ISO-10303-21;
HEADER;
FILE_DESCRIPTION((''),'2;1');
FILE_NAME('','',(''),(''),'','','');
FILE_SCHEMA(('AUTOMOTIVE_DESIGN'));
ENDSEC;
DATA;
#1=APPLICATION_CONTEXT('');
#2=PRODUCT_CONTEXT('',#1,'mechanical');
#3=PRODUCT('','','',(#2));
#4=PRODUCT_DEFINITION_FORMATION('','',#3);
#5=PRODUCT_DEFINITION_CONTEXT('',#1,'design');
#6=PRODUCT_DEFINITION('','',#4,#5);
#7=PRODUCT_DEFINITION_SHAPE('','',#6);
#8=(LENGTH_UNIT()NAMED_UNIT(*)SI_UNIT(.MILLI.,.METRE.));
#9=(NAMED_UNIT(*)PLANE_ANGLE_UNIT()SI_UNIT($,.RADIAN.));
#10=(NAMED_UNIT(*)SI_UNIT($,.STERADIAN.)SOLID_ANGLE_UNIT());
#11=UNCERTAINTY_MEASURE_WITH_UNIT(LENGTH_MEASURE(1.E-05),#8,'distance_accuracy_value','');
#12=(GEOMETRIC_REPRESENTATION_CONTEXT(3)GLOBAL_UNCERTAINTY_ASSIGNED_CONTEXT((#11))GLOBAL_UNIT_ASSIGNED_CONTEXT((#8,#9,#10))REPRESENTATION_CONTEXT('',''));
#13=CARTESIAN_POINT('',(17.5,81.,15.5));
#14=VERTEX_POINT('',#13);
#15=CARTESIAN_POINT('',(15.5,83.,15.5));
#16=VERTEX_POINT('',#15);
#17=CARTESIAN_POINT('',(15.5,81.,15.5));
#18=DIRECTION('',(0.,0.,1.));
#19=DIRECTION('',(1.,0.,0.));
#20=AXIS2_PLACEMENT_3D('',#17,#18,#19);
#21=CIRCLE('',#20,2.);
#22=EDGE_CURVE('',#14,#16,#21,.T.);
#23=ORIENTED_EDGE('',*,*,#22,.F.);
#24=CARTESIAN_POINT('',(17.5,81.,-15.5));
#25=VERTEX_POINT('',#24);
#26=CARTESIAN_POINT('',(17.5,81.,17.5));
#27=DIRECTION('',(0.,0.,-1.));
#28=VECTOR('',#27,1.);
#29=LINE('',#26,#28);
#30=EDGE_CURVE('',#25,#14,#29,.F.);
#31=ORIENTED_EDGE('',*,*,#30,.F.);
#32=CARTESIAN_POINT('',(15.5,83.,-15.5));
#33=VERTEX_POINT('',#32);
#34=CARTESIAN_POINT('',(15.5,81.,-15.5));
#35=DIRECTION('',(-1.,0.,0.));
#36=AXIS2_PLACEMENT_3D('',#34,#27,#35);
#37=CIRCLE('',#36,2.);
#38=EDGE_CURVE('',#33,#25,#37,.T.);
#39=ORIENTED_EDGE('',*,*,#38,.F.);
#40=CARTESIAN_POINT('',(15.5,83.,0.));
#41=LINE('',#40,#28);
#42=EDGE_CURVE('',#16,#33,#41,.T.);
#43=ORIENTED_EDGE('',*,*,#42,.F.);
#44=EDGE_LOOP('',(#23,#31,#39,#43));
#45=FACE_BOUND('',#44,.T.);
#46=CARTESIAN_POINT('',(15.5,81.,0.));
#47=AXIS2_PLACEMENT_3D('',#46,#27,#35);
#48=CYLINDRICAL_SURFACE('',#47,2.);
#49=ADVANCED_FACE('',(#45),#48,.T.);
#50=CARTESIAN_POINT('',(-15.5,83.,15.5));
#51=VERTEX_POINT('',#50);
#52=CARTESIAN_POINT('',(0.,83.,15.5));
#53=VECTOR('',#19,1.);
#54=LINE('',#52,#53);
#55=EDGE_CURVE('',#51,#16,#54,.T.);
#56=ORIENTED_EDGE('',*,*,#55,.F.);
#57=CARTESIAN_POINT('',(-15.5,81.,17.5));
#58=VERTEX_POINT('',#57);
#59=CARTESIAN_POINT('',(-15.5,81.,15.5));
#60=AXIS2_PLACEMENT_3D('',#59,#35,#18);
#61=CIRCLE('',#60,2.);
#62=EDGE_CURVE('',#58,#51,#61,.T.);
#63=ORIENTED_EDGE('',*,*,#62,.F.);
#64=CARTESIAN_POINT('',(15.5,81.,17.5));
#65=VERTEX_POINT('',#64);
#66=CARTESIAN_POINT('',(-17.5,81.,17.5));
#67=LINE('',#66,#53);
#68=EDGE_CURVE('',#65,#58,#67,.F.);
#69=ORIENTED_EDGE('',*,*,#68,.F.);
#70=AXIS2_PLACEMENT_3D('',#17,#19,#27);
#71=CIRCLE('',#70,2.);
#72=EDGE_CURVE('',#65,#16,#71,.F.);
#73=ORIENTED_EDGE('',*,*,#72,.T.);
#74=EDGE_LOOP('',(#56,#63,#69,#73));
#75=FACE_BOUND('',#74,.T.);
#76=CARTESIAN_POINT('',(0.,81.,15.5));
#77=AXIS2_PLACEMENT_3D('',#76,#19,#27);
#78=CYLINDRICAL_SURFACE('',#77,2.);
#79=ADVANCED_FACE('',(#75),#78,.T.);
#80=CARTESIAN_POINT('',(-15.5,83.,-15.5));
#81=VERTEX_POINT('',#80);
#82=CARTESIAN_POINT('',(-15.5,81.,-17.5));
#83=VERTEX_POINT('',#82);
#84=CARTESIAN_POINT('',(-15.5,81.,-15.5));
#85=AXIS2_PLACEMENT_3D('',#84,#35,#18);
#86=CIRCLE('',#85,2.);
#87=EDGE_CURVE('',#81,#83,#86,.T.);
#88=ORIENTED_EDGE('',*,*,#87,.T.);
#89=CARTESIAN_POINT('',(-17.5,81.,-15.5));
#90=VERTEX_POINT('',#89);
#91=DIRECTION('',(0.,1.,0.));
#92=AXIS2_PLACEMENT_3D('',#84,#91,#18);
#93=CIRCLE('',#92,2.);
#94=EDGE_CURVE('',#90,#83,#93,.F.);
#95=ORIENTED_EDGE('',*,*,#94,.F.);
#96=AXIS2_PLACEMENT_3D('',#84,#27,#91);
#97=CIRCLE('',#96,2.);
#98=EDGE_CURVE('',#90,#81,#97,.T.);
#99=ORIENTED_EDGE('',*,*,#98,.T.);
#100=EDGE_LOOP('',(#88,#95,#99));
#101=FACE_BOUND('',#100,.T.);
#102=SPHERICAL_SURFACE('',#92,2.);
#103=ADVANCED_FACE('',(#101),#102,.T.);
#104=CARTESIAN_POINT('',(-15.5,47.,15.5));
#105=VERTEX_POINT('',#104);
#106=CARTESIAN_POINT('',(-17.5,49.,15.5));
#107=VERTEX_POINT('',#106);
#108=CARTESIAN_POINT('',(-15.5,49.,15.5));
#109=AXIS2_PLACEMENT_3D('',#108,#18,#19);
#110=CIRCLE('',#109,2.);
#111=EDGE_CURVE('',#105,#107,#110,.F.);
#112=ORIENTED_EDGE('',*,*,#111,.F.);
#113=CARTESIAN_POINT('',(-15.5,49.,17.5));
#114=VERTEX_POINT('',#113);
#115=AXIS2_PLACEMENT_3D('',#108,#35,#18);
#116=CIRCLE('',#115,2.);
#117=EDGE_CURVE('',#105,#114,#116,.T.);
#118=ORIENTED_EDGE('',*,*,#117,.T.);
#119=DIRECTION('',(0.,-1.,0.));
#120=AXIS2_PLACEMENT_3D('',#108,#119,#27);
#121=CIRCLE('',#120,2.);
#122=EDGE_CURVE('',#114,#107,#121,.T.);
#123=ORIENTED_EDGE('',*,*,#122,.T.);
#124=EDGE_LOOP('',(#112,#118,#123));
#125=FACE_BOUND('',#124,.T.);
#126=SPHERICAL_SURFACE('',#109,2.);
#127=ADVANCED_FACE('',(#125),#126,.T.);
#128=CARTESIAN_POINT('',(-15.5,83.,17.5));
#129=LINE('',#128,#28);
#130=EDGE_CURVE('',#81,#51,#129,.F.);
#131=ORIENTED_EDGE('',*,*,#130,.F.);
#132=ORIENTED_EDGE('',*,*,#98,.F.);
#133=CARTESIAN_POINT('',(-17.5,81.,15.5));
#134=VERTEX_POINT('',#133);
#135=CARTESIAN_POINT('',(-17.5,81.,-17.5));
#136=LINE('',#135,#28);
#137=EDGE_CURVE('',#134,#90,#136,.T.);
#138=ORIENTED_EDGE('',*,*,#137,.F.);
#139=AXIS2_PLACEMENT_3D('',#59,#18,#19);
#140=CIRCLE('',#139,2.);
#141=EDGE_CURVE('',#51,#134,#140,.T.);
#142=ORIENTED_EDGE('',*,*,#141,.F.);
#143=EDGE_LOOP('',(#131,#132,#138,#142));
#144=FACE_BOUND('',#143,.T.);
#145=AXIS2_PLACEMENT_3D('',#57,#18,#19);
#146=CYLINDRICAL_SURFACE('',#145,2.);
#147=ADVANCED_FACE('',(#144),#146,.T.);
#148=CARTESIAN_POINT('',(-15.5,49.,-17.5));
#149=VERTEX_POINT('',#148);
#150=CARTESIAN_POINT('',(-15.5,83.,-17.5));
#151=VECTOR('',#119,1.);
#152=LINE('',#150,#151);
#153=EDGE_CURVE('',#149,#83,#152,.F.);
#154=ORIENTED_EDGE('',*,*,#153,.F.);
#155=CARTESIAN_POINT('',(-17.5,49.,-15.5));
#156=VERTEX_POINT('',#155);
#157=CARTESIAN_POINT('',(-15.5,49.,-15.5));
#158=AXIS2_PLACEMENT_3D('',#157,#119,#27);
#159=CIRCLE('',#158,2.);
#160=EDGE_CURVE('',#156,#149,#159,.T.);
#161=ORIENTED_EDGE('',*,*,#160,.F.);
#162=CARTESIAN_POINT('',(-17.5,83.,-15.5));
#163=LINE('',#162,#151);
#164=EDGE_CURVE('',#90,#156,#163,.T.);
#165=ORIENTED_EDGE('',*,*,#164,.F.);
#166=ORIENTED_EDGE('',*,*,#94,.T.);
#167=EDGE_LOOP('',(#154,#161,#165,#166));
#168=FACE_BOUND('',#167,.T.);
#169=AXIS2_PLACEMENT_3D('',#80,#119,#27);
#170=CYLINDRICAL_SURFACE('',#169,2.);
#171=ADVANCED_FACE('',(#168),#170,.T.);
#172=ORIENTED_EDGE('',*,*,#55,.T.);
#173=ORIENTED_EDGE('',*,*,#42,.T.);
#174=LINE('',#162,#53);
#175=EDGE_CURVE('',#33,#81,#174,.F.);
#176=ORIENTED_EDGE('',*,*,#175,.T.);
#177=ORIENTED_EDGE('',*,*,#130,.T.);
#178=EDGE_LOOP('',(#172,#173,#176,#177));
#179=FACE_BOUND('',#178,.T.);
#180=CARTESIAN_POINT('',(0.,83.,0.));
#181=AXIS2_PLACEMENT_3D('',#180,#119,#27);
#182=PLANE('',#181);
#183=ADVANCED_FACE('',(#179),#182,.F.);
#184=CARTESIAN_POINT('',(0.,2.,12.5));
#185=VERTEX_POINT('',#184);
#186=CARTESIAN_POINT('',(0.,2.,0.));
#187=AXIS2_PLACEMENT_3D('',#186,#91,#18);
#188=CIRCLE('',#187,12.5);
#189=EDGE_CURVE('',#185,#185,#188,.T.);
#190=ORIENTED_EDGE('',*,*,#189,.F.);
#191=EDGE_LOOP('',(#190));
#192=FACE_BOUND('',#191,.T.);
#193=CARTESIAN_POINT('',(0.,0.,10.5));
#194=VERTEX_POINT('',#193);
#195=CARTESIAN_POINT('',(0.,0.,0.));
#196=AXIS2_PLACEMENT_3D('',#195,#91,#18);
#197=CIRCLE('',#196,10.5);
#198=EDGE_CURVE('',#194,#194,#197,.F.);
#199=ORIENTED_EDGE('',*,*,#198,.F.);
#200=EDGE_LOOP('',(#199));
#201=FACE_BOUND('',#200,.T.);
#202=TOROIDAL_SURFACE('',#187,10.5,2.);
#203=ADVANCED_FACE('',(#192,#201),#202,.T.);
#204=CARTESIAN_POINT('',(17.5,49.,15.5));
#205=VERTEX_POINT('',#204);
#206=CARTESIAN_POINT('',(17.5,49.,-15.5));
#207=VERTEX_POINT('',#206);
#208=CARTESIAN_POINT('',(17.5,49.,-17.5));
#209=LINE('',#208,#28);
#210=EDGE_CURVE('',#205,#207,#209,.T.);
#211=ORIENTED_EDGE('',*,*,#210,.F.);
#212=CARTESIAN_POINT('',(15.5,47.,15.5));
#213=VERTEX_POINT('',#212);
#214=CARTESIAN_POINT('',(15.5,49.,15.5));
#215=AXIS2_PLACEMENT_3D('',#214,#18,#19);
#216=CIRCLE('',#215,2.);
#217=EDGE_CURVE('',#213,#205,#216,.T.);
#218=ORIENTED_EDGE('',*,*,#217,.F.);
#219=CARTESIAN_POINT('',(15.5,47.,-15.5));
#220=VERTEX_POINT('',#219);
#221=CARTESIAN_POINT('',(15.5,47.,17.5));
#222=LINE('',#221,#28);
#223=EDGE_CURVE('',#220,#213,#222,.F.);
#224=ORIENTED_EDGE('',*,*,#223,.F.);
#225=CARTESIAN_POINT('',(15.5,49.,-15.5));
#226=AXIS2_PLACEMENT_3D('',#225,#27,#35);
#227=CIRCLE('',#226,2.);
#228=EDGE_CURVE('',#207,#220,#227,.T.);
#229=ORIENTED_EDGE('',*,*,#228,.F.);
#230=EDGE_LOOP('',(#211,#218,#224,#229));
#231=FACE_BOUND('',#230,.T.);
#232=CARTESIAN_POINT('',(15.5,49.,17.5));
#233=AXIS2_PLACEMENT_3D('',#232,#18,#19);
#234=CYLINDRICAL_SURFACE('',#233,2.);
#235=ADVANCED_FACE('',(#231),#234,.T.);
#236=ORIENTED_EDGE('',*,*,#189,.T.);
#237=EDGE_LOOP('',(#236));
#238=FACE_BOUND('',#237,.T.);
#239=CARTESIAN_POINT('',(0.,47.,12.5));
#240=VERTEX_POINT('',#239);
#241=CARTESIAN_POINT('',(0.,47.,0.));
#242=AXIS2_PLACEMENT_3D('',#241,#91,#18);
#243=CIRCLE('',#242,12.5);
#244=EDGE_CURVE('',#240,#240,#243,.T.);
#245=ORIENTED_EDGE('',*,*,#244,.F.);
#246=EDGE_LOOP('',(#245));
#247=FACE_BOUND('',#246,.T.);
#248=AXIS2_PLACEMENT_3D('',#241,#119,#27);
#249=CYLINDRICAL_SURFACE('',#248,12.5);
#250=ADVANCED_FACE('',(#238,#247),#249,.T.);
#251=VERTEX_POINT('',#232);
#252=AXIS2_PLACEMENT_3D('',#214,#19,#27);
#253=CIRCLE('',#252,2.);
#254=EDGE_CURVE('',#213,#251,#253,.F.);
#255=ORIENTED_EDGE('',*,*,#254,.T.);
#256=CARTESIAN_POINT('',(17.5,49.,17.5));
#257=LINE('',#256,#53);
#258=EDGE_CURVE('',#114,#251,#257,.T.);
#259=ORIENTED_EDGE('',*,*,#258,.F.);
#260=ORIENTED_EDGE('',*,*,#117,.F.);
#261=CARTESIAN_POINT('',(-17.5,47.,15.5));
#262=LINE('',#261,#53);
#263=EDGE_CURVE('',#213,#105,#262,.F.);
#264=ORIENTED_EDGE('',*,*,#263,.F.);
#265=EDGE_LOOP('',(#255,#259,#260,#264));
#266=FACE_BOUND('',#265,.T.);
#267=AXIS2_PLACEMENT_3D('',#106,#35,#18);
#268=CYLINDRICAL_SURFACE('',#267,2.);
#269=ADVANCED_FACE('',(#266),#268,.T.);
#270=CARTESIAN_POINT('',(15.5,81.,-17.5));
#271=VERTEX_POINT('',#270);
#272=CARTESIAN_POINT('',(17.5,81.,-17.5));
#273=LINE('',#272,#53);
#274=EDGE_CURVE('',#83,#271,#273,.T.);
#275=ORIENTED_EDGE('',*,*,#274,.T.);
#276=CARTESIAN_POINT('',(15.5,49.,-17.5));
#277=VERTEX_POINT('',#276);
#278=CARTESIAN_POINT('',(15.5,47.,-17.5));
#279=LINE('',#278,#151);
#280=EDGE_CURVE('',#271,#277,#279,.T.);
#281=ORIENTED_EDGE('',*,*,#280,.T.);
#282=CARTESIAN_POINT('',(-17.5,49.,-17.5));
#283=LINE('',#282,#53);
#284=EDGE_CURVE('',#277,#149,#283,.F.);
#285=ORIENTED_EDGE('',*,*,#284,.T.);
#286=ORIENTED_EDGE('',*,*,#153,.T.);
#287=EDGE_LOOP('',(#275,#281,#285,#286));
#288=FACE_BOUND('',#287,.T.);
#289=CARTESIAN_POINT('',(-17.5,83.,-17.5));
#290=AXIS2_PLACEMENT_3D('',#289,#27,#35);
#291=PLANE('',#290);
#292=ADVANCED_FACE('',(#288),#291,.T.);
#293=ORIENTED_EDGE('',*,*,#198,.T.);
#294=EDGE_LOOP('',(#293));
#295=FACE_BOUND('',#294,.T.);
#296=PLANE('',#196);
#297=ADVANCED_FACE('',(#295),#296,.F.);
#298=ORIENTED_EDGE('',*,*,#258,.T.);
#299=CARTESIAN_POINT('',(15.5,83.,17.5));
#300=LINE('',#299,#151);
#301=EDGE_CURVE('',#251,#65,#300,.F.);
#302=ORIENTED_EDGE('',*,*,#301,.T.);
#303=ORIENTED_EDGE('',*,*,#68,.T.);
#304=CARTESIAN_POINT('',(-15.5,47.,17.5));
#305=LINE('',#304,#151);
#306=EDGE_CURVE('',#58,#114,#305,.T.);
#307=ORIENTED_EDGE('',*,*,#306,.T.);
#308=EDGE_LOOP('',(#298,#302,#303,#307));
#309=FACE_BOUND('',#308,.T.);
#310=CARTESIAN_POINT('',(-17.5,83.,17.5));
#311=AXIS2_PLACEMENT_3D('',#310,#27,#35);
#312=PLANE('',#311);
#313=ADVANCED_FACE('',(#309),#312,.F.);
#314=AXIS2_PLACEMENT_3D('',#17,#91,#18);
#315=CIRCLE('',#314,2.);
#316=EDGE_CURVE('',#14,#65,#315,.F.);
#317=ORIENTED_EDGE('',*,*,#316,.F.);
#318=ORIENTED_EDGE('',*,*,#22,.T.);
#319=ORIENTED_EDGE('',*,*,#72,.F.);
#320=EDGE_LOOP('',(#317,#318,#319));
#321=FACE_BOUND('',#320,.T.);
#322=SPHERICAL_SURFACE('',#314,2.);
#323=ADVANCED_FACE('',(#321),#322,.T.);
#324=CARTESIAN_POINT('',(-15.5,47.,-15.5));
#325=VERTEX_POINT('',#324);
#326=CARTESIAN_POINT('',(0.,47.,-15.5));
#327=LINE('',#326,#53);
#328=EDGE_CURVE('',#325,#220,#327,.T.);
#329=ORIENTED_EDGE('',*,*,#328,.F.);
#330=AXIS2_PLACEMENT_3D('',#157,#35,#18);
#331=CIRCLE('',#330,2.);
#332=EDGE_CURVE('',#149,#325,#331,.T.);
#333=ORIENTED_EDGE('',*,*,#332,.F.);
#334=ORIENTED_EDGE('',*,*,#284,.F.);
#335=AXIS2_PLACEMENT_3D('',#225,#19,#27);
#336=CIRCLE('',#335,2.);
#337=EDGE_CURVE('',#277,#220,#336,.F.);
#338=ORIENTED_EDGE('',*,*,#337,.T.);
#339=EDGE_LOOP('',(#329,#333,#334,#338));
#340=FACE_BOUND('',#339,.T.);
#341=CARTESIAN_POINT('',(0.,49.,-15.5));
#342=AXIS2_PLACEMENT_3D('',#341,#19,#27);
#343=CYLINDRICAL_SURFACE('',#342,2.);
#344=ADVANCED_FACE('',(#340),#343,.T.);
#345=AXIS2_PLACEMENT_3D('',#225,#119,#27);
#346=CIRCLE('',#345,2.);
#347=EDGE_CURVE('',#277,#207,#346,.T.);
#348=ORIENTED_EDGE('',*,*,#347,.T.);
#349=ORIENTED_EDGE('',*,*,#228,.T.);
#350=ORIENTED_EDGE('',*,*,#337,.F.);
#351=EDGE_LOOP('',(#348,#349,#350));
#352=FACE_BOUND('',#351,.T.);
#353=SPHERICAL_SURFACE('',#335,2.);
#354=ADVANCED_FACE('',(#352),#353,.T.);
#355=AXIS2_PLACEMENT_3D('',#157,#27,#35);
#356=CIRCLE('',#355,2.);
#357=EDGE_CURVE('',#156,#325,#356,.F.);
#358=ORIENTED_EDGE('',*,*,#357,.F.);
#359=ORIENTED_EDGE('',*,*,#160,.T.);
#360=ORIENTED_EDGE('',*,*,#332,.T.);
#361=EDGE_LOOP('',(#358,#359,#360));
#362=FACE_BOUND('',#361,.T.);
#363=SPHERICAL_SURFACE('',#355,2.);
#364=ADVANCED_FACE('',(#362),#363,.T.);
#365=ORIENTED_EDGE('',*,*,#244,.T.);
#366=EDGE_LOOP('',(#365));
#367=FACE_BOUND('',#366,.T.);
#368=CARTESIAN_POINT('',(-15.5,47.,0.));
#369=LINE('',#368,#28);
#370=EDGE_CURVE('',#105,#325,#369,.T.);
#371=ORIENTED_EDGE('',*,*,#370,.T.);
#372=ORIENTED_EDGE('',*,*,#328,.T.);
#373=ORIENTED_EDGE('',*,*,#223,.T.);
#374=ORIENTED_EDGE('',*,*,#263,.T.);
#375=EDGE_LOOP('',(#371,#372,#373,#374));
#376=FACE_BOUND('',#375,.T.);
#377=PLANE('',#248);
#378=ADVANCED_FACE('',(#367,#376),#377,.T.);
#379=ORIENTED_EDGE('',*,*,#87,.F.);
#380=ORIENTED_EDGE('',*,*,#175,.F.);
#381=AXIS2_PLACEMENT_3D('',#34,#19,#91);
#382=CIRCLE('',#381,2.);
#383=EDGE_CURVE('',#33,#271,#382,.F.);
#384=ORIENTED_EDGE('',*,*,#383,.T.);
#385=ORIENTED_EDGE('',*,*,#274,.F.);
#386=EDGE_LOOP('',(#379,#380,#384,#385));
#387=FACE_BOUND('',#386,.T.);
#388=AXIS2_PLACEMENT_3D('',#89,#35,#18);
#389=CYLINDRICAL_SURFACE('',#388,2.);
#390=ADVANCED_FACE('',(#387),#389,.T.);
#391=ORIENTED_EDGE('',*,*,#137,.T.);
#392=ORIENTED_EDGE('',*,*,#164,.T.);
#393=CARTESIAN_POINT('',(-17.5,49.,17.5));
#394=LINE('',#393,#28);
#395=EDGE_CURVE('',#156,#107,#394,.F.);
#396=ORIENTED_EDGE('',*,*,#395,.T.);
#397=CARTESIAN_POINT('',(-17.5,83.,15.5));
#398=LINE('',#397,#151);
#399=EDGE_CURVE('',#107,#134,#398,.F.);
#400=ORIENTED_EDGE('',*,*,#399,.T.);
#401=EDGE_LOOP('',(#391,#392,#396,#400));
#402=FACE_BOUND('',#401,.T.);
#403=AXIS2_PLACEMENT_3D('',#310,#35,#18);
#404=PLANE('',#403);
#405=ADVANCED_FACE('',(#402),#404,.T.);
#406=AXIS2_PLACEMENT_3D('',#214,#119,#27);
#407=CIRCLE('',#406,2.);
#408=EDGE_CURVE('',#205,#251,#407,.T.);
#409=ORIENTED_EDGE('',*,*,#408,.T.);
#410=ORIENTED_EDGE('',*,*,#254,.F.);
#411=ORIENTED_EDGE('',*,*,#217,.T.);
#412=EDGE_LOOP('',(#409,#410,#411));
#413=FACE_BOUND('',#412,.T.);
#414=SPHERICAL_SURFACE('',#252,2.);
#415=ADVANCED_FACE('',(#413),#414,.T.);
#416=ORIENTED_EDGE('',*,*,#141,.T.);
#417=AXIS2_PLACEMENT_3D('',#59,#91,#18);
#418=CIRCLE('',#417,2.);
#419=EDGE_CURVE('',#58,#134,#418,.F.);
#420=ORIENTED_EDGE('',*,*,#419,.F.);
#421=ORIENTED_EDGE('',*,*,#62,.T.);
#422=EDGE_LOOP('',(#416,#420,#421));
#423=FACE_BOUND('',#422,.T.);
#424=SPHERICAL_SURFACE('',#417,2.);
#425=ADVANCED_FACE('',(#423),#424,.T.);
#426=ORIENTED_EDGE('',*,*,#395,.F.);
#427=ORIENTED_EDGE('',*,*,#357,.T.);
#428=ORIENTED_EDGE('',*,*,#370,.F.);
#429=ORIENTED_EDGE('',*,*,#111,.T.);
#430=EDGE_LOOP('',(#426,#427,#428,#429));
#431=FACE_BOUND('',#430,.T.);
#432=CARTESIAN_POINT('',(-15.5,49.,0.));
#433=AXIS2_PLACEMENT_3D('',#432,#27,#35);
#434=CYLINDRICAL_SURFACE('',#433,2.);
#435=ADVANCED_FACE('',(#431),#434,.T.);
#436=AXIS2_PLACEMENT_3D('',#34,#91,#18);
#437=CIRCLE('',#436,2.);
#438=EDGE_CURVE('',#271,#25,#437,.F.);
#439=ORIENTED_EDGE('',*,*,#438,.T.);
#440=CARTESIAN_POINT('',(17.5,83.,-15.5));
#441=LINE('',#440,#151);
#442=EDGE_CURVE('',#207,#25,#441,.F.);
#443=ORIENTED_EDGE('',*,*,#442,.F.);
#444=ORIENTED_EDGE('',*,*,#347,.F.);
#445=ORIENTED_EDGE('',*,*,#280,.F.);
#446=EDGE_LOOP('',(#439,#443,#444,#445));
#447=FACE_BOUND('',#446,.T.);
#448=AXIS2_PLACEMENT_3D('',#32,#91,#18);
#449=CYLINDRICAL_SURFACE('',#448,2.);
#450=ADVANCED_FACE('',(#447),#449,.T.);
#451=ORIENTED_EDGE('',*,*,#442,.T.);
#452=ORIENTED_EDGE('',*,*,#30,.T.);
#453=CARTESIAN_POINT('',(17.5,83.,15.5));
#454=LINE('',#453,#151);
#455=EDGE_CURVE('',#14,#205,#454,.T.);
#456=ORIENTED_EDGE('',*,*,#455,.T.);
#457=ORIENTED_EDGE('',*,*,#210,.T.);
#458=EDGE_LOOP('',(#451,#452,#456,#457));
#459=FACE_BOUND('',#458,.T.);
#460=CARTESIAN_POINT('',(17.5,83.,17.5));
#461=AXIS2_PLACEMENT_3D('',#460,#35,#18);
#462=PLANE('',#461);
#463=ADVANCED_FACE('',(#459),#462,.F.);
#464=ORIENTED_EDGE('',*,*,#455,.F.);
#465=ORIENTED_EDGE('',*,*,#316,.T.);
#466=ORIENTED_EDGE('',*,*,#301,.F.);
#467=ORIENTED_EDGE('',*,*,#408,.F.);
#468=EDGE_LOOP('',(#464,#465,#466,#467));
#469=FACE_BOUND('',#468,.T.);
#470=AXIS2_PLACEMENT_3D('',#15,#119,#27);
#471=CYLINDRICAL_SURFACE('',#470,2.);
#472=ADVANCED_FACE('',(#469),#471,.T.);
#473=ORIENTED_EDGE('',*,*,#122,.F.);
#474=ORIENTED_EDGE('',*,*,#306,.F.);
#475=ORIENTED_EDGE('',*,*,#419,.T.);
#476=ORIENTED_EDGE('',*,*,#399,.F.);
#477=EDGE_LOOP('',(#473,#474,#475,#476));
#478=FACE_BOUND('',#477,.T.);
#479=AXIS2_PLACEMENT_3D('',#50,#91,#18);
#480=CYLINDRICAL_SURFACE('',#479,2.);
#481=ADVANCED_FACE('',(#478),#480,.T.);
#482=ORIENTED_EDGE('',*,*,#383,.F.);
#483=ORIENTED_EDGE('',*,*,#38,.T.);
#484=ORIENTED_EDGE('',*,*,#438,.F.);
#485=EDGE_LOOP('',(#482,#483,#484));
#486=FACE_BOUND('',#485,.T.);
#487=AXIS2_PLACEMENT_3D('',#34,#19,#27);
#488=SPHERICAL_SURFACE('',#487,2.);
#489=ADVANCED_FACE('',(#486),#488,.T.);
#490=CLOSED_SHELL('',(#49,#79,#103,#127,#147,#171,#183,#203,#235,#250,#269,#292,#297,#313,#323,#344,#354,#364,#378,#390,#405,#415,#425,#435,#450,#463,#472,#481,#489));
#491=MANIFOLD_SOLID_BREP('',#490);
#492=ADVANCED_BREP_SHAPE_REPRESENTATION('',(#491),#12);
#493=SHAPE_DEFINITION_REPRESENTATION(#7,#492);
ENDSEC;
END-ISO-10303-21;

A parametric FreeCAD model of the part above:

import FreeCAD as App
import Part
import Sketcher
from FreeCAD import Vector


def edges_at(feature, points):
    """Names of the edges that pass closest to the given points."""
    edges = feature.Shape.Edges
    near = lambda p: min(range(len(edges)), key=lambda i: edges[i].distToShape(Part.Vertex(*p))[0])
    return sorted({f"Edge{near(p) + 1}" for p in points})


def add_polygon(sketch, points):
    """Adds a closed chain of lines whose ends are joined by coincident constraints."""
    first, n = sketch.GeometryCount, len(points)
    for a, b in zip(points, points[1:] + points[:1]):
        sketch.addGeometry(Part.LineSegment(App.Vector(*a, 0), App.Vector(*b, 0)), False)
    for i in range(n):
        sketch.addConstraint(Sketcher.Constraint("Coincident", first + i, 2, first + (i + 1) % n, 1))

doc = App.newDocument("Part")
body = doc.addObject("PartDesign::Body", "Body")

sketch1 = doc.addObject("Sketcher::SketchObject", "Sketch")
body.addObject(sketch1)
sketch1.AttachmentSupport = (doc.XZ_Plane, [""])
sketch1.MapMode = "FlatFace"
sketch1.addGeometry(Part.Circle(Vector(0, 0, 0), Vector(0, 0, 1), 12), False)
sketch1.addConstraint(Sketcher.Constraint("Coincident", 0, 3, -1, 1))
sketch1.addConstraint(Sketcher.Constraint("Diameter", 0, 25.0))
pad1 = doc.addObject("PartDesign::Pad", "Pad")
body.addObject(pad1)
pad1.Profile = sketch1
pad1.Length = 47
pad1.Reversed = True

sketch2 = doc.addObject("Sketcher::SketchObject", "Sketch001")
body.addObject(sketch2)
sketch2.AttachmentSupport = (doc.XZ_Plane, [""])
sketch2.MapMode = "FlatFace"
sketch2.AttachmentOffset = App.Placement(Vector(0, 0, -47), App.Rotation())
add_polygon(sketch2, [(-18, -18), (-18, 18), (18, 18), (18, -18)])
sketch2.addConstraint(Sketcher.Constraint("Vertical", 0))
sketch2.addConstraint(Sketcher.Constraint("Horizontal", 1))
sketch2.addConstraint(Sketcher.Constraint("Vertical", 2))
sketch2.addConstraint(Sketcher.Constraint("Horizontal", 3))
sketch2.addConstraint(Sketcher.Constraint("Symmetric", 0, 2, 2, 2, -1, 1))
sketch2.addConstraint(Sketcher.Constraint("Equal", 3, 0))
sketch2.addConstraint(Sketcher.Constraint("DistanceX", 1, 1, 1, 2, 35.0))
pad2 = doc.addObject("PartDesign::Pad", "Pad001")
body.addObject(pad2)
pad2.Profile = sketch2
pad2.Length = 36
pad2.Reversed = True
doc.recompute()

fillet = doc.addObject("PartDesign::Fillet", "Fillet")
body.addObject(fillet)
fillet.Base = (pad2, edges_at(pad2, [
    (0, 0, -12.5),
    (-17.5, 83, 0),
    (-17.5, 65, -17.5),
    (0, 47, 17.5),
    (-17.5, 65, 17.5),
    (17.5, 47, 0),
    (17.5, 65, 17.5),
    (0, 83, -17.5),
    (17.5, 65, -17.5),
    (0, 83, 17.5),
    (17.5, 83, 0),
    (-17.5, 47, 0),
    (0, 47, -17.5),
]))
fillet.Radius = 2

doc.recompute()
